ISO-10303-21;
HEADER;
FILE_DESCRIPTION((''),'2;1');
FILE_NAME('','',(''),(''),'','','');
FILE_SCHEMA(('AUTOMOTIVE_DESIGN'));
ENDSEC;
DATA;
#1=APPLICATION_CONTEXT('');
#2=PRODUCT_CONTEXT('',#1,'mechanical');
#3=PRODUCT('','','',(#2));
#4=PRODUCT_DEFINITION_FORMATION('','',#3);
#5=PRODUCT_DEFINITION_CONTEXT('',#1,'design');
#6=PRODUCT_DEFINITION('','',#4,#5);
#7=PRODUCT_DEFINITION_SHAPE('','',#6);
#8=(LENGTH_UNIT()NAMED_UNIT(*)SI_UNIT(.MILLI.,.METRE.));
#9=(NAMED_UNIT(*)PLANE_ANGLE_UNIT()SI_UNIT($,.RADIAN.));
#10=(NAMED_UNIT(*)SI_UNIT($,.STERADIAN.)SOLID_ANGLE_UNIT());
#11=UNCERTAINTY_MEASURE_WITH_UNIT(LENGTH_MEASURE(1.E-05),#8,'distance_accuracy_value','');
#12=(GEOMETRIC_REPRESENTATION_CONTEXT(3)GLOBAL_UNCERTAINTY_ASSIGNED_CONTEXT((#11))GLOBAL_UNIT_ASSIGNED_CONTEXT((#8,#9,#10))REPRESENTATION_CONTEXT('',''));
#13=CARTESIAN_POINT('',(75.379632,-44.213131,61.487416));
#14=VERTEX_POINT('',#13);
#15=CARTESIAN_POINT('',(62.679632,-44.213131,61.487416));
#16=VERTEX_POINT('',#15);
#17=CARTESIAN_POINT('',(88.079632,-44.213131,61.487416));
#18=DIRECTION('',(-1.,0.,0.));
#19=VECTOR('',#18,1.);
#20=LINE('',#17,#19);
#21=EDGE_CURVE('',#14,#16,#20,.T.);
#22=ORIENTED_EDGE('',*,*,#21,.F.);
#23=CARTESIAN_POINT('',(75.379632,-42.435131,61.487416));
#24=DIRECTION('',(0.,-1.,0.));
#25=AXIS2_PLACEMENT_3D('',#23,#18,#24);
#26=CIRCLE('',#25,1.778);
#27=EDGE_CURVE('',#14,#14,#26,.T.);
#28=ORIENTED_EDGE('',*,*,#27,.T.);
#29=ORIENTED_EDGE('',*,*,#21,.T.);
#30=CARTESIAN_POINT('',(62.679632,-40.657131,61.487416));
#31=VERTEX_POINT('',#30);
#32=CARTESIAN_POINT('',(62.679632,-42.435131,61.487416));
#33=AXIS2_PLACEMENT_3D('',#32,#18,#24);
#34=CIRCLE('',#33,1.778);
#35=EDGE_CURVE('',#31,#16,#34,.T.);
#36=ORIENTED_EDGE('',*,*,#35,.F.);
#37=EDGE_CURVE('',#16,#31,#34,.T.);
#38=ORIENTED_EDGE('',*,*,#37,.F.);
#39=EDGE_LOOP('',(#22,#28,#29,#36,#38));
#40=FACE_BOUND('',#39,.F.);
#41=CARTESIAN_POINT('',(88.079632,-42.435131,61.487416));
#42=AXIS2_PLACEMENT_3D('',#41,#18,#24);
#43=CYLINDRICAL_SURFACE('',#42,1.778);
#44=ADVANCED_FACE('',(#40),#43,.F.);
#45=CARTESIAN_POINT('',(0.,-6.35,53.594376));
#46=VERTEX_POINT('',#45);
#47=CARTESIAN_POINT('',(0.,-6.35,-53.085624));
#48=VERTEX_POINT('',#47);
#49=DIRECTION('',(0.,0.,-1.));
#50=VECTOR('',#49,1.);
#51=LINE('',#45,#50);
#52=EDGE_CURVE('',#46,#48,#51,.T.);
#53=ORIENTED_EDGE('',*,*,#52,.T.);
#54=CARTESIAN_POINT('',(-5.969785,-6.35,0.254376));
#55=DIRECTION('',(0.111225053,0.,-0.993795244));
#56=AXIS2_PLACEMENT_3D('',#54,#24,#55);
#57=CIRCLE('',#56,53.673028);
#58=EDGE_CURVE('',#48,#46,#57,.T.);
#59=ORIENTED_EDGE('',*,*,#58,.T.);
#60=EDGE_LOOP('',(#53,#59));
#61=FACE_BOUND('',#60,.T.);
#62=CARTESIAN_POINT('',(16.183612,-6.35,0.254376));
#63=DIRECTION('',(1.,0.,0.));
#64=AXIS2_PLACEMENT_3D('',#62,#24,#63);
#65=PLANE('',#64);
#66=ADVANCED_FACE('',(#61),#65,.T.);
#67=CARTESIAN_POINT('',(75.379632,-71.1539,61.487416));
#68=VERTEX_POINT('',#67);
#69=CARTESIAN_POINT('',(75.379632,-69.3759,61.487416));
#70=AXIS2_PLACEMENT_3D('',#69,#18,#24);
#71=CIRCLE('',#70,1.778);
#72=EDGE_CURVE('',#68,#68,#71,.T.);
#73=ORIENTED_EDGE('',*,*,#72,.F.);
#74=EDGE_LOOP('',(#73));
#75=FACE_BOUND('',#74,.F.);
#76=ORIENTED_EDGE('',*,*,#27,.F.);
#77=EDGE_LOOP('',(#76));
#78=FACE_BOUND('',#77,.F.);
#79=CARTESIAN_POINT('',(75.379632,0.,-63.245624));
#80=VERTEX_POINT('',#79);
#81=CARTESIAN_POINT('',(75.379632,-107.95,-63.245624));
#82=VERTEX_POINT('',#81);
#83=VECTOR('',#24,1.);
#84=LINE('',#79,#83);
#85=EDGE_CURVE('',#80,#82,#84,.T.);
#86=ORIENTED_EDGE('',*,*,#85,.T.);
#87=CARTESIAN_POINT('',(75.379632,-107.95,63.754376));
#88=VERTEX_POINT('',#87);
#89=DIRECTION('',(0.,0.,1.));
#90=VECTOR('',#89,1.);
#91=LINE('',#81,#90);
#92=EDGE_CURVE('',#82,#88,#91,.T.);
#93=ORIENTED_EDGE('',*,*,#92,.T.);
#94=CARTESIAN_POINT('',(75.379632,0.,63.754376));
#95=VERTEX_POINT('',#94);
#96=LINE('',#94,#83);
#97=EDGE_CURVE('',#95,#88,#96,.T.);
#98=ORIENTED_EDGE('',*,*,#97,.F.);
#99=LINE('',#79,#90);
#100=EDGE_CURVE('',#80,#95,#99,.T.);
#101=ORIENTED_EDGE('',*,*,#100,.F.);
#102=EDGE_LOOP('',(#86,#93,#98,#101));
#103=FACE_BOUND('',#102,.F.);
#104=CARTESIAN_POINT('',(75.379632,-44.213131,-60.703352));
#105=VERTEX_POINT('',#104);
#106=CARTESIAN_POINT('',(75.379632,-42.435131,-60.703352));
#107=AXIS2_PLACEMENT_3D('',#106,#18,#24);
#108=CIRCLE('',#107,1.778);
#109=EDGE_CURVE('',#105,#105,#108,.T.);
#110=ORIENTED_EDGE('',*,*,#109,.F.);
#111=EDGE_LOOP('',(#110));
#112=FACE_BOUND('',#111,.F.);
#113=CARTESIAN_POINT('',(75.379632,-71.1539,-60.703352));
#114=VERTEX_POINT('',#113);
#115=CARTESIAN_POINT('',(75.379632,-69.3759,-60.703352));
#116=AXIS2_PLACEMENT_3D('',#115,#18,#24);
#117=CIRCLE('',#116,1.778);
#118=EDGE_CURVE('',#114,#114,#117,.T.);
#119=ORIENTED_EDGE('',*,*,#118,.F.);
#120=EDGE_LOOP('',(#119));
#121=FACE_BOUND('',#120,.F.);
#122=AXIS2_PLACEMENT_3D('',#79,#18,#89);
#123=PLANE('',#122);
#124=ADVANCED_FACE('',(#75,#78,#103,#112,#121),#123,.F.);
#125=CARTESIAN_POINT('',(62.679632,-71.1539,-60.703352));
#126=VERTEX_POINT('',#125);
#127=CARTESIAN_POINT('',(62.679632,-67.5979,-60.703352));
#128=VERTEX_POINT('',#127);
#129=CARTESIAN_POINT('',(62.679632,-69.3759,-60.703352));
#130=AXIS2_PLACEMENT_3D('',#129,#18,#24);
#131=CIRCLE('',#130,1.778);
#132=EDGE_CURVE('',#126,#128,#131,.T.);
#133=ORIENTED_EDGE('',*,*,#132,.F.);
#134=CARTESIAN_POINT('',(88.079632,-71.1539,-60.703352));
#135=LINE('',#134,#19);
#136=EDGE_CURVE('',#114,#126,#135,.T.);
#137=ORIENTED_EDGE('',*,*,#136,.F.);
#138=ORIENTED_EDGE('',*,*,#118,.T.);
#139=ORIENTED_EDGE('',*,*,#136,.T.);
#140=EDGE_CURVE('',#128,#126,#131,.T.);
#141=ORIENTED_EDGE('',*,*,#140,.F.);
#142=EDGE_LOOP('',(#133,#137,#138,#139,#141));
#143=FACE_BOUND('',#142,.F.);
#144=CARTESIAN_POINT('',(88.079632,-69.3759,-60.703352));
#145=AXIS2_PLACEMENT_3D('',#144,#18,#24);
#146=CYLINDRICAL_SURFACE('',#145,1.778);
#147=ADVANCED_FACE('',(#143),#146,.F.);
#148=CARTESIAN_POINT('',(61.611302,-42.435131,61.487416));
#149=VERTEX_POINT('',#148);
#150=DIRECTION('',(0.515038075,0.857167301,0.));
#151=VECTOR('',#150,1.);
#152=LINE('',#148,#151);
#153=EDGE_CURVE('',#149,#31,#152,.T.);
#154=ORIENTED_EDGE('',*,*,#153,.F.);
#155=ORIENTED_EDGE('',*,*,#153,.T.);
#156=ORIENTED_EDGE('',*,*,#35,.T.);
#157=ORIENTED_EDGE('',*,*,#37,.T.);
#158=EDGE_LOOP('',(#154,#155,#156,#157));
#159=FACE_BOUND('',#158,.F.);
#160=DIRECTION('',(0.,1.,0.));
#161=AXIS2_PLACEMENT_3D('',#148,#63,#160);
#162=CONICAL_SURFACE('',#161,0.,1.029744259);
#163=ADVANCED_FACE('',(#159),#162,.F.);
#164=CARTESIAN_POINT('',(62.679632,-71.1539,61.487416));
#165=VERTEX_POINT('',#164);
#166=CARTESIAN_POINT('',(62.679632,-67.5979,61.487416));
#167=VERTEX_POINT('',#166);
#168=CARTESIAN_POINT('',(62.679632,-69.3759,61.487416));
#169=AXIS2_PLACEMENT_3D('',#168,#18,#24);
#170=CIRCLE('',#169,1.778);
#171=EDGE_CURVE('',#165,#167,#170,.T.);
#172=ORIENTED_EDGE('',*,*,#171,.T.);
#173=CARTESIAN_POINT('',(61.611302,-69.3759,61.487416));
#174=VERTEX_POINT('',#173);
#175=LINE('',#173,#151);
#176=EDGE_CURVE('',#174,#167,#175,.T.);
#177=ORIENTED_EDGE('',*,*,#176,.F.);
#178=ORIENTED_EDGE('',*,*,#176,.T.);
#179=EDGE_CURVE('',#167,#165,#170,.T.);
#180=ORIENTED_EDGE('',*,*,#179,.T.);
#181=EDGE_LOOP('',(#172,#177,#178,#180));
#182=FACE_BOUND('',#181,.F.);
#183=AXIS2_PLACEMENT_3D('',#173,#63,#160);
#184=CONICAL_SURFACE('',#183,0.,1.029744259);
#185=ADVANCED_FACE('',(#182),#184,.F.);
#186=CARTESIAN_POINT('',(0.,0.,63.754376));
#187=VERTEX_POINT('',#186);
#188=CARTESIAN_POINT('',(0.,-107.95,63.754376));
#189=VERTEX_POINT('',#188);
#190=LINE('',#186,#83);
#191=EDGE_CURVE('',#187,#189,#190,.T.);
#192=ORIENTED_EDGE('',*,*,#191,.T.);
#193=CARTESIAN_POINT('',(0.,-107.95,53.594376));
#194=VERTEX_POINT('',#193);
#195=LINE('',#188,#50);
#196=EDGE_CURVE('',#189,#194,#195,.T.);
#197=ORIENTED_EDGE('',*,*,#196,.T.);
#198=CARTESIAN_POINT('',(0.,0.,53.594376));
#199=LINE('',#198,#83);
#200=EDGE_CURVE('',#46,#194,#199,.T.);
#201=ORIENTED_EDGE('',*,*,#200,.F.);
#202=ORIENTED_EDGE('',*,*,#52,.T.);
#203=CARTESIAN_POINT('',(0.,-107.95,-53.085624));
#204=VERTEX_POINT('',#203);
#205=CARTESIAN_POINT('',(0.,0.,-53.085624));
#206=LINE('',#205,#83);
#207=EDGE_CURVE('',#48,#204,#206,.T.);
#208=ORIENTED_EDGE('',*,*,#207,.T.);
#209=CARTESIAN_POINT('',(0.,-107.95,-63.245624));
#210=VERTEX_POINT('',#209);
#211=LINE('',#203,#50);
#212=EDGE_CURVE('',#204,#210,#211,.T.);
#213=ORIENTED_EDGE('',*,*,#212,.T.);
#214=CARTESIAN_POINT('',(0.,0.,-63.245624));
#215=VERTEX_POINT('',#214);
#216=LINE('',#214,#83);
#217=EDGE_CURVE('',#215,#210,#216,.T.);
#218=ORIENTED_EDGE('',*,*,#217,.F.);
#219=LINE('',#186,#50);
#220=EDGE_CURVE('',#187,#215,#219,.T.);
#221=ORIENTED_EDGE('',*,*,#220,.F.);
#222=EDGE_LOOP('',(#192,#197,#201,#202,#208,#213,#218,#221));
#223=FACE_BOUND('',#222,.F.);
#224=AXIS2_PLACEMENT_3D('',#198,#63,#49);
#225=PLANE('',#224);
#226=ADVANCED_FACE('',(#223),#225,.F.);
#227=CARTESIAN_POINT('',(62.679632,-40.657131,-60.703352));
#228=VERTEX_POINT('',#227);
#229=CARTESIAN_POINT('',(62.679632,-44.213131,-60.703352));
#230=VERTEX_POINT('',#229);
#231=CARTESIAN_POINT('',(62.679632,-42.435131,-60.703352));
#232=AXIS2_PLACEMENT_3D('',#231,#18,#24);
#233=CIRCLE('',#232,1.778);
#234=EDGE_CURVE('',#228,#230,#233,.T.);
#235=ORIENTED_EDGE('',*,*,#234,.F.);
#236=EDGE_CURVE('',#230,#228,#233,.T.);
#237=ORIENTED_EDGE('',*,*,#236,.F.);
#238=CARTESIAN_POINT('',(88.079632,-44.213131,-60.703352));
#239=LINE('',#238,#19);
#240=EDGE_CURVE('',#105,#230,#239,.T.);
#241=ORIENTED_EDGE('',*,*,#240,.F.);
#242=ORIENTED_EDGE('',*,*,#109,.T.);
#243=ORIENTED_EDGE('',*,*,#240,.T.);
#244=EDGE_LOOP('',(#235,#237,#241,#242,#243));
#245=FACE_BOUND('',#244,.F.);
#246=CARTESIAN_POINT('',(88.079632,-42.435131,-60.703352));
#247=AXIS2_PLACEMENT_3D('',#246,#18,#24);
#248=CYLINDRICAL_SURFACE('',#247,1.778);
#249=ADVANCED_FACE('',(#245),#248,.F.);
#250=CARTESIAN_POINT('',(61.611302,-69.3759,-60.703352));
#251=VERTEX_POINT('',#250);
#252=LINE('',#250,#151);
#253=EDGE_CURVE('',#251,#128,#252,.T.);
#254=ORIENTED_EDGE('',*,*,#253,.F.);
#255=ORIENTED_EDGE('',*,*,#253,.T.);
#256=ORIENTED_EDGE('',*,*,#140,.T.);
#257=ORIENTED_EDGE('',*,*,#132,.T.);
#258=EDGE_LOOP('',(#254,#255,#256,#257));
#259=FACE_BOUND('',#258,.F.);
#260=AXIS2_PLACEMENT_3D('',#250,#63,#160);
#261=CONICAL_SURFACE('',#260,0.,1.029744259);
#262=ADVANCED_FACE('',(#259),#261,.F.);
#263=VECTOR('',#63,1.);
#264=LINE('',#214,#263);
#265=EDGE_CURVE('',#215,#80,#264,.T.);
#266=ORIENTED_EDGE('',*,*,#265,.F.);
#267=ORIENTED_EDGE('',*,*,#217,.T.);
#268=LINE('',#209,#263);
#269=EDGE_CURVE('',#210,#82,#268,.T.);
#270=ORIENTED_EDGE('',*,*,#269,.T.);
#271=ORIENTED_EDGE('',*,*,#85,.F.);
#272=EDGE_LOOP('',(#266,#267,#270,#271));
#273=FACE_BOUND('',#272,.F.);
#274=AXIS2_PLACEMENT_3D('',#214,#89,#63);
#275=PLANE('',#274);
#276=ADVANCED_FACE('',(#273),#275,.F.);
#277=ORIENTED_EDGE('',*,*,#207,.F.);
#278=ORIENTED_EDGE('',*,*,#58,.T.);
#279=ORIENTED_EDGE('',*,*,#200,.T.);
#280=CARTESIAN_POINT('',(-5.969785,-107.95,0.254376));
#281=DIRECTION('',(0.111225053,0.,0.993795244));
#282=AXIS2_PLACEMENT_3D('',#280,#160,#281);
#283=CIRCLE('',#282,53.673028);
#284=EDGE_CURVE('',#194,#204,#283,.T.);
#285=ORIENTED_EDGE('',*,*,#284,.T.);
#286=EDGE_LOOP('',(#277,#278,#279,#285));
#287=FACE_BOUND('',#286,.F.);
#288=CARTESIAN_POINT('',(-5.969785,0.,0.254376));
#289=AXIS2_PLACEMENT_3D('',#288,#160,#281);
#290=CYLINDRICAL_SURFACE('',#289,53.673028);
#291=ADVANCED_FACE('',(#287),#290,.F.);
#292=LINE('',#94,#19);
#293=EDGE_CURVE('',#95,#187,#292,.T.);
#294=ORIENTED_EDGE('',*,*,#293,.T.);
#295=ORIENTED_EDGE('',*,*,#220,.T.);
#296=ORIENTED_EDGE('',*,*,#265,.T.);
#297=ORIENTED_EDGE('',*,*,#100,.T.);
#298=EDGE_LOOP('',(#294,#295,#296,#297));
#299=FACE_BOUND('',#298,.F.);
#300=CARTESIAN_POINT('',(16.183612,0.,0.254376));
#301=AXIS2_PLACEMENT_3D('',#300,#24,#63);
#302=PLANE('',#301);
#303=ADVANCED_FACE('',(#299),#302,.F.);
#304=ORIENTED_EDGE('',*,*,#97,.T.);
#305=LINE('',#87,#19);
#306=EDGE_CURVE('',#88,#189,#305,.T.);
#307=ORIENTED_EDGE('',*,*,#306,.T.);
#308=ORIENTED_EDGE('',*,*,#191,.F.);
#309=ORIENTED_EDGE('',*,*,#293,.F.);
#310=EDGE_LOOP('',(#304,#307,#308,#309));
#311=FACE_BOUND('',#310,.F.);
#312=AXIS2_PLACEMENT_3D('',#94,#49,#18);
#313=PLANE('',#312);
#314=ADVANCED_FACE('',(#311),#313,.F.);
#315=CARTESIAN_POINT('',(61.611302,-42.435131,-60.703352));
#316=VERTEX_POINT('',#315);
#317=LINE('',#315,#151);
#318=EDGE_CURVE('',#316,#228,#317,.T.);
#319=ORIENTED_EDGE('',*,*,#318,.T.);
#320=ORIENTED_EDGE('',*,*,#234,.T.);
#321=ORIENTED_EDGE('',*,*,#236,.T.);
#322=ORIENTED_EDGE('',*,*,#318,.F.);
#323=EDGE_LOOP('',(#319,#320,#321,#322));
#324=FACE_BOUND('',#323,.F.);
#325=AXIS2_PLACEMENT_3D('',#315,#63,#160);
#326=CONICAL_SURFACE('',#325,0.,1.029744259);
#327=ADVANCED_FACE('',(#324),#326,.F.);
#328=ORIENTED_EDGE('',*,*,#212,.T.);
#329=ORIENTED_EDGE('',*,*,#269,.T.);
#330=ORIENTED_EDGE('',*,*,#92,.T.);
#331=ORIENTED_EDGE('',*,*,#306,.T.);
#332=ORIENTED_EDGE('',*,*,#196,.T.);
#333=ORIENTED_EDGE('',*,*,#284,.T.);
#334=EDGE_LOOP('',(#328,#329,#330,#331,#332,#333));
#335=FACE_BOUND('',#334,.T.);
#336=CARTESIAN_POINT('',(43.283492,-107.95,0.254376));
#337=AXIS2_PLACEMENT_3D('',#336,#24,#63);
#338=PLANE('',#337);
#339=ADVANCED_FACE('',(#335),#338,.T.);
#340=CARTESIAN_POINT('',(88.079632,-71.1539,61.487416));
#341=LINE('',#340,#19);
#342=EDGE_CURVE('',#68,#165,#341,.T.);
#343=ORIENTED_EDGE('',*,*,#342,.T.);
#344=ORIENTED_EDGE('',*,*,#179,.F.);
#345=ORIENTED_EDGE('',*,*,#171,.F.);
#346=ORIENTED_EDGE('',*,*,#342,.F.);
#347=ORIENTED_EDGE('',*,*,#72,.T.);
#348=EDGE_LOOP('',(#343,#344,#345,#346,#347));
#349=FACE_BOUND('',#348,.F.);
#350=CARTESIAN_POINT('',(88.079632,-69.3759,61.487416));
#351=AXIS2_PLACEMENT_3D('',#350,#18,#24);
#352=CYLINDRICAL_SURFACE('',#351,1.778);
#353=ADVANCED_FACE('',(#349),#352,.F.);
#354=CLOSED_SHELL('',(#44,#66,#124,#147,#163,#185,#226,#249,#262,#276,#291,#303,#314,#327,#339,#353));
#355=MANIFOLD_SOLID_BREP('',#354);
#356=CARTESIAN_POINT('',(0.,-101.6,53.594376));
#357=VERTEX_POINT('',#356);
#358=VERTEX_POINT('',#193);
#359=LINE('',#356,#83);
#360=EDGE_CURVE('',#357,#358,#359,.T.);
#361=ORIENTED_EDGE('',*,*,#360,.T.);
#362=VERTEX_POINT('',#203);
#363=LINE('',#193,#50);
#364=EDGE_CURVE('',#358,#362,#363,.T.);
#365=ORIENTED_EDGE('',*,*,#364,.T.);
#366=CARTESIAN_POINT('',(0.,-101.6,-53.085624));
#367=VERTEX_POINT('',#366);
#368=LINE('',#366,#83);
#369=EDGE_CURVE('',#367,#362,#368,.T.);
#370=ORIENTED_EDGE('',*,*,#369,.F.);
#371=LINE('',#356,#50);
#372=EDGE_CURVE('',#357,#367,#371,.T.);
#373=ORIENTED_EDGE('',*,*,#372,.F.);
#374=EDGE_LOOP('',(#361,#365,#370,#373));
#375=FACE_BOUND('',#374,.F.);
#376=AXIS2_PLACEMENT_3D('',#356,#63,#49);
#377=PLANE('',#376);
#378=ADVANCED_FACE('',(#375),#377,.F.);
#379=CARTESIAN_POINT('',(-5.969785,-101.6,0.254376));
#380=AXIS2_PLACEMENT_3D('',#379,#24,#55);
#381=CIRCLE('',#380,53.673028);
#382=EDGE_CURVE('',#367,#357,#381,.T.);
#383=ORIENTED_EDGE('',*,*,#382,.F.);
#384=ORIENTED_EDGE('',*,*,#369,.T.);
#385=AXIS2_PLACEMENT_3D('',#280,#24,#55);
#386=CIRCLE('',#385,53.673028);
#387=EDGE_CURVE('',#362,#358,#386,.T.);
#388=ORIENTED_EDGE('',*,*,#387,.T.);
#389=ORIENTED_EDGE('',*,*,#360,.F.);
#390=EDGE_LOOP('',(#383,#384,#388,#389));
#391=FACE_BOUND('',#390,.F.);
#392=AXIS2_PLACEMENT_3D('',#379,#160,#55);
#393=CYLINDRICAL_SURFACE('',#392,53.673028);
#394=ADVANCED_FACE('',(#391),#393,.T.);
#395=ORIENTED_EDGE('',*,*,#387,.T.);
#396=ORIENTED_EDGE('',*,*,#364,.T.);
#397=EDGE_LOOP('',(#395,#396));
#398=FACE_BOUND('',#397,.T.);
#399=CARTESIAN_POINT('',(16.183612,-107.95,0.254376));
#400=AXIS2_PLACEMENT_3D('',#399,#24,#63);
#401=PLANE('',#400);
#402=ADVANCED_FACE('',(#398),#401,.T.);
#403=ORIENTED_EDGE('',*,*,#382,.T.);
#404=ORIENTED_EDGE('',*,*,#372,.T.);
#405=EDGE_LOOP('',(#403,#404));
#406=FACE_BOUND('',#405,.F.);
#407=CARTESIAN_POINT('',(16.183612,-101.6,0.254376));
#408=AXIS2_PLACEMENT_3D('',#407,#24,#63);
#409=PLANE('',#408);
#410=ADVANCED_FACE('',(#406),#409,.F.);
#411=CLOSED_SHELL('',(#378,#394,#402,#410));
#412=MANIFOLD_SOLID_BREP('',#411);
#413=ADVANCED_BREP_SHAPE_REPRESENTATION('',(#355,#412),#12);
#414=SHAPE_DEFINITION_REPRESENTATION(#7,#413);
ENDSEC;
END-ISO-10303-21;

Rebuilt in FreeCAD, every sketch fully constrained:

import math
import FreeCAD as App
import Part
import Sketcher
from FreeCAD import Vector
Q = App.Units.Quantity

doc = App.newDocument("Part")
body = doc.addObject("PartDesign::Body", "Body")

# Sketch on XZ plane
sketch1 = body.newObject("Sketcher::SketchObject", "Sketch")
sketch1.AttachmentSupport = (doc.getObject("XZ_Plane"), [""])
sketch1.MapMode = "FlatFace"
sketch1.addGeometry([
    Part.ArcOfCircle(Part.Circle(Vector(-5.969785, 0.254376, 0), Vector(0, 0, 1), 53.673028), math.radians(-83.614061), math.radians(83.614061)),  # 0
    Part.LineSegment(Vector(0, -53.085624, 0), Vector(0, -63.245624, 0)),  # 1
    Part.LineSegment(Vector(0, -63.245624, 0), Vector(75.379632, -63.245624, 0)),  # 2
    Part.LineSegment(Vector(75.379632, -63.245624, 0), Vector(75.379632, 63.754376, 0)),  # 3
    Part.LineSegment(Vector(75.379632, 63.754376, 0), Vector(0, 63.754376, 0)),  # 4
    Part.LineSegment(Vector(0, 63.754376, 0), Vector(0, 53.594376, 0)),  # 5
], False)
sketch1.addConstraint([
    Sketcher.Constraint("Coincident", 0, 1, 1, 1),
    Sketcher.Constraint("Coincident", 1, 2, 2, 1),
    Sketcher.Constraint("Coincident", 2, 2, 3, 1),
    Sketcher.Constraint("Coincident", 3, 2, 4, 1),
    Sketcher.Constraint("Coincident", 4, 2, 5, 1),
    Sketcher.Constraint("Coincident", 5, 2, 0, 2),
    Sketcher.Constraint("Vertical", 1),
    Sketcher.Constraint("Horizontal", 2),
    Sketcher.Constraint("Vertical", 3),
    Sketcher.Constraint("Horizontal", 4),
    Sketcher.Constraint("Vertical", 5),
    Sketcher.Constraint("PointOnObject", 0, 1, -2),
    Sketcher.Constraint("PointOnObject", 4, 2, -2),
    Sketcher.Constraint("Equal", 1, 5),
    Sketcher.Constraint("DistanceY", 3, 1, 3, 2, Q("5 in")),
    Sketcher.Constraint("DistanceY", 1, 2, 1, 1, Q("0.4 in")),
    Sketcher.Constraint("Radius", 0, Q("53.673028 mm")),
    Sketcher.Constraint("DistanceX", 2, 1, 2, 2, Q("75.379632 mm")),
    Sketcher.Constraint("DistanceY", -1, 1, 0, 3, Q("0.254376 mm")),
])
pad1 = body.newObject("PartDesign::Pad", "Pad")
pad1.Profile = sketch1
pad1.Length = Q("4.25 in")

# Sketch on XZ plane
sketch2 = body.newObject("Sketcher::SketchObject", "Sketch001")
sketch2.AttachmentSupport = (doc.getObject("XZ_Plane"), [""])
sketch2.MapMode = "FlatFace"
sketch2.addGeometry([
    Part.LineSegment(Vector(0, 53.594376, 0), Vector(0, -53.085624, 0)),
    Part.ArcOfCircle(Part.Circle(Vector(-5.969785, 0.254376, 0), Vector(0, 0, 1), 53.673028), math.radians(-83.614061), math.radians(83.614061)),
], False)
sketch2.addConstraint([
    Sketcher.Constraint("Coincident", 0, 1, 1, 2),
    Sketcher.Constraint("Coincident", 1, 1, 0, 2),
    Sketcher.Constraint("Vertical", 0),
    Sketcher.Constraint("PointOnObject", 0, 1, -2),
    Sketcher.Constraint("DistanceY", 0, 2, 0, 1, Q("4.2 in")),
    Sketcher.Constraint("Radius", 1, Q("53.673028 mm")),
    Sketcher.Constraint("DistanceY", -1, 1, 1, 3, Q("0.254376 mm")),
])
pad2 = body.newObject("PartDesign::Pad", "Pad001")
pad2.Profile = sketch2
pad2.Length = Q("0.25 in")

# Sketch on YZ plane
sketch3 = body.newObject("Sketcher::SketchObject", "Sketch002")
sketch3.AttachmentSupport = (doc.getObject("YZ_Plane"), [""])
sketch3.MapMode = "FlatFace"
sketch3.AttachmentOffset = App.Placement(Vector(0, 0, 75.379632), App.Rotation())
sketch3.addGeometry([
    Part.Circle(Vector(-69.3759, 61.487416, 0), Vector(0, 0, 1), 1.778),
    Part.Circle(Vector(-42.435131, 61.487416, 0), Vector(0, 0, 1), 1.778),
    Part.Circle(Vector(-69.3759, -60.703352, 0), Vector(0, 0, 1), 1.778),
    Part.Circle(Vector(-42.435131, -60.703352, 0), Vector(0, 0, 1), 1.778),
], False)
sketch3.addConstraint([
    Sketcher.Constraint("Equal", 0, 1),
    Sketcher.Constraint("Equal", 1, 2),
    Sketcher.Constraint("Equal", 2, 3),
    Sketcher.Constraint("Horizontal", 0, 3, 1, 3),
    Sketcher.Constraint("Horizontal", 2, 3, 3, 3),
    Sketcher.Constraint("Vertical", 0, 3, 2, 3),
    Sketcher.Constraint("Vertical", 1, 3, 3, 3),
    Sketcher.Constraint("Diameter", 0, Q("0.14 in")),
    Sketcher.Constraint("DistanceX", 0, 3, -1, 1, Q("69.3759 mm")),
    Sketcher.Constraint("DistanceX", 1, 3, -1, 1, Q("42.435131 mm")),
    Sketcher.Constraint("DistanceY", 2, 3, 0, 3, Q("122.190768 mm")),
    Sketcher.Constraint("DistanceY", -1, 1, 0, 3, Q("61.487416 mm")),
])
doc.recompute()
hole = body.newObject("PartDesign::Hole", "Hole")
hole.Profile = sketch3
hole.ThreadType = "None"
hole.Diameter = Q("0.14 in")
hole.DepthType = "Dimension"
hole.Depth = Q("0.5 in")
hole.DrillPoint = "Angled"
hole.DrillPointAngle = 118
body2 = doc.addObject("PartDesign::Body", "Body001")

# Sketch on XZ plane
sketch4 = body2.newObject("Sketcher::SketchObject", "Sketch003")
sketch4.AttachmentSupport = (doc.getObject("XZ_Plane001"), [""])
sketch4.MapMode = "FlatFace"
sketch4.AttachmentOffset = App.Placement(Vector(0, 0, 4 * 25.4), App.Rotation())
sketch4.addGeometry([
    Part.LineSegment(Vector(0, 53.594376, 0), Vector(0, -53.085624, 0)),
    Part.ArcOfCircle(Part.Circle(Vector(-5.969785, 0.254376, 0), Vector(0, 0, 1), 53.673028), math.radians(-83.614061), math.radians(83.614061)),
], False)
sketch4.addConstraint([
    Sketcher.Constraint("Coincident", 0, 1, 1, 2),
    Sketcher.Constraint("Coincident", 1, 1, 0, 2),
    Sketcher.Constraint("Vertical", 0),
    Sketcher.Constraint("PointOnObject", 0, 1, -2),
    Sketcher.Constraint("DistanceY", 0, 2, 0, 1, Q("4.2 in")),
    Sketcher.Constraint("Radius", 1, Q("53.673028 mm")),
    Sketcher.Constraint("DistanceY", -1, 1, 1, 3, Q("0.254376 mm")),
])
pad3 = body2.newObject("PartDesign::Pad", "Pad002")
pad3.Profile = sketch4
pad3.Length = Q("0.25 in")

doc.recompute()
